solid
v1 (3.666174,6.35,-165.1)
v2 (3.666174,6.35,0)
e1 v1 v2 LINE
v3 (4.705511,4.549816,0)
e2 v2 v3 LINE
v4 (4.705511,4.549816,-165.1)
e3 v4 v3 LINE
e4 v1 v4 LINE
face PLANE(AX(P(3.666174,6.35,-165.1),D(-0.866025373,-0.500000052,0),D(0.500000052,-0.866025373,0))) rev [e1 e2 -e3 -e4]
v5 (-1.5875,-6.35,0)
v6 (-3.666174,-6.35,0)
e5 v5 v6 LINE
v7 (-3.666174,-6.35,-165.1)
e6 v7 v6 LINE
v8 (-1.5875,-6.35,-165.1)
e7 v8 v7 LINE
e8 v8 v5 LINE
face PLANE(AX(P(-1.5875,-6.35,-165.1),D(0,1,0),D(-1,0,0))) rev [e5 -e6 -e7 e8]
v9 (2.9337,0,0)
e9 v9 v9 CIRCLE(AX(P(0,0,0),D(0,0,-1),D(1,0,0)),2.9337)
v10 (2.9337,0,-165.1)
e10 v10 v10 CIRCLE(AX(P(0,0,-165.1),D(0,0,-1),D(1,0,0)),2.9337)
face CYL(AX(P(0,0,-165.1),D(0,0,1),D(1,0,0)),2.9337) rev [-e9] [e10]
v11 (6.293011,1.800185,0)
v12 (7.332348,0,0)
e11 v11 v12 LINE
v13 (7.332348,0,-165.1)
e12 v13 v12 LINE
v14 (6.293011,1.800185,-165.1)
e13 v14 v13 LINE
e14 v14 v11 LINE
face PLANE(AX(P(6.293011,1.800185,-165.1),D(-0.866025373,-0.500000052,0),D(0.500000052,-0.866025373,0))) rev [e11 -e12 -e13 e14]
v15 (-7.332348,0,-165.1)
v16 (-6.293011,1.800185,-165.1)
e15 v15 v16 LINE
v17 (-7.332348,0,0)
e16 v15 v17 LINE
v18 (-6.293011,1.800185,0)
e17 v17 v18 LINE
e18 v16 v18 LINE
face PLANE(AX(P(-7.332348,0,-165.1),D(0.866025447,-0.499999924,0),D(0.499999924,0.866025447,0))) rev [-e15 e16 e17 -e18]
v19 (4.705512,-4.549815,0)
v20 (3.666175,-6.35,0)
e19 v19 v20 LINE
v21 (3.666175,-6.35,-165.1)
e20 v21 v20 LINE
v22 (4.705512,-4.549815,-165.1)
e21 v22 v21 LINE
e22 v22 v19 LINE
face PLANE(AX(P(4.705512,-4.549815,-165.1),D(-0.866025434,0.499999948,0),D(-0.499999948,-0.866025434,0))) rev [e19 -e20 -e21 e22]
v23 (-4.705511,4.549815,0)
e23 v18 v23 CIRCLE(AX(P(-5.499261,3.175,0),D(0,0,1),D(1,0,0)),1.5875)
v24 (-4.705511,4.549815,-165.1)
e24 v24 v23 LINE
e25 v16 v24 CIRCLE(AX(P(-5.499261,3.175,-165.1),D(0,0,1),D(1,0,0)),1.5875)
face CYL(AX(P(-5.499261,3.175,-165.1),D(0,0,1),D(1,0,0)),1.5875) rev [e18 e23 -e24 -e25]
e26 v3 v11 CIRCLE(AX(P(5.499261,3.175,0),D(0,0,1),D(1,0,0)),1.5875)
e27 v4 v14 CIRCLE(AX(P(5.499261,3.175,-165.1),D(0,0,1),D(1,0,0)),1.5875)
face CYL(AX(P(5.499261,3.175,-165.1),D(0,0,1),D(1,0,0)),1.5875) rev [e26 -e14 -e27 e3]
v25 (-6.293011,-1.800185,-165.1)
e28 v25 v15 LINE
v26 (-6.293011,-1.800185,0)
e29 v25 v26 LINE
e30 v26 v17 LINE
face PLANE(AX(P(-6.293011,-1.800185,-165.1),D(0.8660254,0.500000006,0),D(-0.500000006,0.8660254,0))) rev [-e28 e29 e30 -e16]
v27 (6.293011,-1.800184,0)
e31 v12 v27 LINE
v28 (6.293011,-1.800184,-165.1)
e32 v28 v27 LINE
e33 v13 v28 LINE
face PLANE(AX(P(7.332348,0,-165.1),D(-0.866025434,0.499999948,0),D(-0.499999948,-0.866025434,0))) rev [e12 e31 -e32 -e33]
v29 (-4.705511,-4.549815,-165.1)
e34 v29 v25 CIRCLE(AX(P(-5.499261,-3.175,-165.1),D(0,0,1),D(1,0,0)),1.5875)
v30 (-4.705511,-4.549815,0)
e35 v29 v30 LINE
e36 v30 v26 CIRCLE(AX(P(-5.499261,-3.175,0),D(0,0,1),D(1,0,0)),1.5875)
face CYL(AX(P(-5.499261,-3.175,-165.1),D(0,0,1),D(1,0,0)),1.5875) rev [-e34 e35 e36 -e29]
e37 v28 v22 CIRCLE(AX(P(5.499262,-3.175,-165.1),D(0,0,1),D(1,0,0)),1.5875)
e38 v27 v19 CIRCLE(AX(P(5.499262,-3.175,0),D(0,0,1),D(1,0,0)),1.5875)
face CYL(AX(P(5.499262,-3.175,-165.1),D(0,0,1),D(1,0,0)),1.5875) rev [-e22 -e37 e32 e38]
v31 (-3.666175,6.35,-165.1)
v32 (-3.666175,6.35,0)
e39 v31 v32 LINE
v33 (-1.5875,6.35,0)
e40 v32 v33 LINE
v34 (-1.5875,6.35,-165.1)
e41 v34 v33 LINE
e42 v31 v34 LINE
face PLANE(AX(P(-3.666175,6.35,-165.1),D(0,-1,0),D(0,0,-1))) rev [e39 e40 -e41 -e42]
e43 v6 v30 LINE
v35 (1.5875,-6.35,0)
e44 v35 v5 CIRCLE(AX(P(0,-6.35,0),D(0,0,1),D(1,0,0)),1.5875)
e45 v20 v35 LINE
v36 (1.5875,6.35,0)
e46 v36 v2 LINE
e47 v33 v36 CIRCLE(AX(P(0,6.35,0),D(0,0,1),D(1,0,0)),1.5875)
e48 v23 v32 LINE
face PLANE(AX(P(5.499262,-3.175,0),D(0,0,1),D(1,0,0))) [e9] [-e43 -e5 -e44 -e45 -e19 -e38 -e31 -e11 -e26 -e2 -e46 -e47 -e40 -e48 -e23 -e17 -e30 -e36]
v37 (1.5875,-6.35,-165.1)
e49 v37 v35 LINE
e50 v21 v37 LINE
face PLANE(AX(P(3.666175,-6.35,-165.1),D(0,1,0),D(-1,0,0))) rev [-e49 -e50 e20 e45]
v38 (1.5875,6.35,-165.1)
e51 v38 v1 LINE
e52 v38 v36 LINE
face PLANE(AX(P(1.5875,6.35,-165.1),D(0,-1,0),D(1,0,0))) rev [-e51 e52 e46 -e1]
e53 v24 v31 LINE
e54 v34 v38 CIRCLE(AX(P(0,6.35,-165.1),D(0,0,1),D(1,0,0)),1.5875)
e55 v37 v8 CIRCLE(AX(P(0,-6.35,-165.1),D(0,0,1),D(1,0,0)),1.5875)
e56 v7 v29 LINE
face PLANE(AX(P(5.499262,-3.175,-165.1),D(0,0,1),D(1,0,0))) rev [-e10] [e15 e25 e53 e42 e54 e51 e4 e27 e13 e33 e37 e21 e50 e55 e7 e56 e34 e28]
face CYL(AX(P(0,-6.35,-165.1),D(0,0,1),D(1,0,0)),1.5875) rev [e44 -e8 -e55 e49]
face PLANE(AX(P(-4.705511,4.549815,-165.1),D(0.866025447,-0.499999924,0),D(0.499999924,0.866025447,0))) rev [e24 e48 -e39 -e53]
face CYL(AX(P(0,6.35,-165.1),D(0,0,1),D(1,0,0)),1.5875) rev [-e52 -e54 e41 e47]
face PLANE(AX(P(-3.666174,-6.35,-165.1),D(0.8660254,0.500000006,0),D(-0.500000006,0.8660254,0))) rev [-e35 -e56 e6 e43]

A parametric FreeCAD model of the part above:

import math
import FreeCAD as App
import Part
import Sketcher

V = App.Vector
Q = App.Units.Quantity

doc = App.newDocument("Part")
params = doc.addObject("Spreadsheet::Sheet", "Params")
for row, (alias, value) in enumerate([
    ("sketch1_diameter", "0.231 in"),
    ("sketch1_radius", "0.0625 in"),
    ("pad1_length", "6.5 in"),
], start=1):
    params.set(f"A{row}", alias)
    params.set(f"B{row}", "=" + value)
    params.setAlias(f"B{row}", alias)

body = doc.addObject("PartDesign::Body", "Body")

# Sketch on XY plane
sketch1 = body.newObject("Sketcher::SketchObject", "Sketch")
sketch1.AttachmentSupport = (doc.getObject("XY_Plane"), [""])
sketch1.MapMode = "FlatFace"
sketch1.addGeometry([
    Part.LineSegment(V(4.7, -4.5, 0), V(3.7, -6.3, 0)),  # 0
    Part.LineSegment(V(3.7, -6.3, 0), V(1.6, -6.3, 0)),  # 1
    Part.ArcOfCircle(Part.Circle(V(0, -6.3, 0), V(0, 0, 1), 1.6), math.radians(0), math.radians(180)),  # 2
    Part.LineSegment(V(-1.6, -6.3, 0), V(-3.7, -6.3, 0)),  # 3
    Part.LineSegment(V(-3.7, -6.3, 0), V(-4.7, -4.5, 0)),  # 4
    Part.ArcOfCircle(Part.Circle(V(-5.5, -3.2, 0), V(0, 0, 1), 1.6), math.radians(-60), math.radians(120)),  # 5
    Part.LineSegment(V(-6.3, -1.8, 0), V(-7.3, 0, 0)),  # 6
    Part.LineSegment(V(-7.3, 0, 0), V(-6.3, 1.8, 0)),  # 7
    Part.ArcOfCircle(Part.Circle(V(-5.5, 3.2, 0), V(0, 0, 1), 1.6), math.radians(-120), math.radians(60)),  # 8
    Part.LineSegment(V(-4.7, 4.5, 0), V(-3.7, 6.4, 0)),  # 9
    Part.LineSegment(V(-3.7, 6.4, 0), V(-1.6, 6.4, 0)),  # 10
    Part.ArcOfCircle(Part.Circle(V(0, 6.4, 0), V(0, 0, 1), 1.6), math.radians(180), math.radians(360)),  # 11
    Part.LineSegment(V(1.6, 6.4, 0), V(3.7, 6.4, 0)),  # 12
    Part.LineSegment(V(3.7, 6.4, 0), V(4.7, 4.5, 0)),  # 13
    Part.ArcOfCircle(Part.Circle(V(5.5, 3.2, 0), V(0, 0, 1), 1.6), math.radians(120), math.radians(300)),  # 14
    Part.LineSegment(V(6.3, 1.8, 0), V(7.3, 0, 0)),  # 15
    Part.LineSegment(V(7.3, 0, 0), V(6.3, -1.8, 0)),  # 16
    Part.ArcOfCircle(Part.Circle(V(5.5, -3.2, 0), V(0, 0, 1), 1.6), math.radians(60), math.radians(240)),  # 17
    Part.Circle(V(0, 0, 0), V(0, 0, 1), 2.9),  # 18
], False)
sketch1.addConstraint([
    Sketcher.Constraint("Coincident", 0, 2, 1, 1),
    Sketcher.Constraint("Coincident", 1, 2, 2, 1),
    Sketcher.Constraint("Coincident", 2, 2, 3, 1),
    Sketcher.Constraint("Coincident", 3, 2, 4, 1),
    Sketcher.Constraint("Coincident", 4, 2, 5, 1),
    Sketcher.Constraint("Coincident", 5, 2, 6, 1),
    Sketcher.Constraint("Coincident", 6, 2, 7, 1),
    Sketcher.Constraint("Coincident", 7, 2, 8, 1),
    Sketcher.Constraint("Coincident", 8, 2, 9, 1),
    Sketcher.Constraint("Coincident", 9, 2, 10, 1),
    Sketcher.Constraint("Coincident", 10, 2, 11, 1),
    Sketcher.Constraint("Coincident", 11, 2, 12, 1),
    Sketcher.Constraint("Coincident", 12, 2, 13, 1),
    Sketcher.Constraint("Coincident", 13, 2, 14, 1),
    Sketcher.Constraint("Coincident", 14, 2, 15, 1),
    Sketcher.Constraint("Coincident", 15, 2, 16, 1),
    Sketcher.Constraint("Coincident", 16, 2, 17, 1),
    Sketcher.Constraint("Coincident", 17, 2, 0, 1),
    Sketcher.Constraint("Horizontal", 1),
    Sketcher.Constraint("Horizontal", 3),
    Sketcher.Constraint("Horizontal", 10),
    Sketcher.Constraint("Horizontal", 12),
    Sketcher.Constraint("Coincident", 18, 3, -1, 1),
    Sketcher.Constraint("Equal", 2, 5),
    Sketcher.Constraint("Equal", 5, 8),
    Sketcher.Constraint("Equal", 8, 11),
    Sketcher.Constraint("Equal", 11, 14),
    Sketcher.Constraint("Equal", 14, 17),
    Sketcher.Constraint("Symmetric", 2, 3, 11, 3, -1, 1),
    Sketcher.Constraint("Symmetric", 5, 3, 14, 3, -1, 1),
    Sketcher.Constraint("Symmetric", 8, 3, 17, 3, -1, 1),
    Sketcher.Constraint("Symmetric", 0, 2, 9, 2, -1, 1),
    Sketcher.Constraint("Symmetric", 3, 2, 12, 2, -1, 1),
    Sketcher.Constraint("Symmetric", 6, 2, 15, 2, -1, 1),
    Sketcher.Constraint("Symmetric", 8, 3, 14, 3, -2),
    Sketcher.Constraint("Symmetric", 1, 2, 2, 2, -2),
    Sketcher.Constraint("PointOnObject", 6, 2, -1),
    Sketcher.Constraint("Parallel", 4, 6),
    Sketcher.Constraint("Parallel", 0, 7),
    Sketcher.Constraint("Parallel", 7, 9),
    Sketcher.Constraint("Parallel", 6, 13),
    Sketcher.Constraint("Parallel", 13, 15),
    Sketcher.Constraint("Parallel", 9, 16),
    Sketcher.Constraint("Horizontal", 2, 3, 0, 2),
    Sketcher.Constraint("Horizontal", 8, 2, 13, 2),
    Sketcher.Constraint("Horizontal", 7, 2, 14, 2),
    Sketcher.Constraint("Equal", 4, 6),
    Sketcher.Constraint("Diameter", 18, Q("0.231 in")),
    Sketcher.Constraint("Angle", 0, Q("-119.999997 deg")),
    Sketcher.Constraint("Radius", 2, Q("0.0625 in")),
    Sketcher.Constraint("DistanceY", 2, 3, 11, 3, Q("0.5 in")),
    Sketcher.Constraint("DistanceY", 5, 3, 8, 3, Q("0.25 in")),
    Sketcher.Constraint("DistanceX", 5, 3, 4, 2, Q("0.03125 in")),
    Sketcher.Constraint("DistanceX", 1, 2, 1, 1, 2.078674),
])
sketch1.setExpression("Constraints[47]", "Params.sketch1_diameter")
sketch1.setExpression("Constraints[49]", "Params.sketch1_radius")
pad1 = body.newObject("PartDesign::Pad", "Pad")
pad1.Profile = sketch1
pad1.setExpression("Length", "Params.pad1_length")
pad1.Reversed = True

doc.recompute()
